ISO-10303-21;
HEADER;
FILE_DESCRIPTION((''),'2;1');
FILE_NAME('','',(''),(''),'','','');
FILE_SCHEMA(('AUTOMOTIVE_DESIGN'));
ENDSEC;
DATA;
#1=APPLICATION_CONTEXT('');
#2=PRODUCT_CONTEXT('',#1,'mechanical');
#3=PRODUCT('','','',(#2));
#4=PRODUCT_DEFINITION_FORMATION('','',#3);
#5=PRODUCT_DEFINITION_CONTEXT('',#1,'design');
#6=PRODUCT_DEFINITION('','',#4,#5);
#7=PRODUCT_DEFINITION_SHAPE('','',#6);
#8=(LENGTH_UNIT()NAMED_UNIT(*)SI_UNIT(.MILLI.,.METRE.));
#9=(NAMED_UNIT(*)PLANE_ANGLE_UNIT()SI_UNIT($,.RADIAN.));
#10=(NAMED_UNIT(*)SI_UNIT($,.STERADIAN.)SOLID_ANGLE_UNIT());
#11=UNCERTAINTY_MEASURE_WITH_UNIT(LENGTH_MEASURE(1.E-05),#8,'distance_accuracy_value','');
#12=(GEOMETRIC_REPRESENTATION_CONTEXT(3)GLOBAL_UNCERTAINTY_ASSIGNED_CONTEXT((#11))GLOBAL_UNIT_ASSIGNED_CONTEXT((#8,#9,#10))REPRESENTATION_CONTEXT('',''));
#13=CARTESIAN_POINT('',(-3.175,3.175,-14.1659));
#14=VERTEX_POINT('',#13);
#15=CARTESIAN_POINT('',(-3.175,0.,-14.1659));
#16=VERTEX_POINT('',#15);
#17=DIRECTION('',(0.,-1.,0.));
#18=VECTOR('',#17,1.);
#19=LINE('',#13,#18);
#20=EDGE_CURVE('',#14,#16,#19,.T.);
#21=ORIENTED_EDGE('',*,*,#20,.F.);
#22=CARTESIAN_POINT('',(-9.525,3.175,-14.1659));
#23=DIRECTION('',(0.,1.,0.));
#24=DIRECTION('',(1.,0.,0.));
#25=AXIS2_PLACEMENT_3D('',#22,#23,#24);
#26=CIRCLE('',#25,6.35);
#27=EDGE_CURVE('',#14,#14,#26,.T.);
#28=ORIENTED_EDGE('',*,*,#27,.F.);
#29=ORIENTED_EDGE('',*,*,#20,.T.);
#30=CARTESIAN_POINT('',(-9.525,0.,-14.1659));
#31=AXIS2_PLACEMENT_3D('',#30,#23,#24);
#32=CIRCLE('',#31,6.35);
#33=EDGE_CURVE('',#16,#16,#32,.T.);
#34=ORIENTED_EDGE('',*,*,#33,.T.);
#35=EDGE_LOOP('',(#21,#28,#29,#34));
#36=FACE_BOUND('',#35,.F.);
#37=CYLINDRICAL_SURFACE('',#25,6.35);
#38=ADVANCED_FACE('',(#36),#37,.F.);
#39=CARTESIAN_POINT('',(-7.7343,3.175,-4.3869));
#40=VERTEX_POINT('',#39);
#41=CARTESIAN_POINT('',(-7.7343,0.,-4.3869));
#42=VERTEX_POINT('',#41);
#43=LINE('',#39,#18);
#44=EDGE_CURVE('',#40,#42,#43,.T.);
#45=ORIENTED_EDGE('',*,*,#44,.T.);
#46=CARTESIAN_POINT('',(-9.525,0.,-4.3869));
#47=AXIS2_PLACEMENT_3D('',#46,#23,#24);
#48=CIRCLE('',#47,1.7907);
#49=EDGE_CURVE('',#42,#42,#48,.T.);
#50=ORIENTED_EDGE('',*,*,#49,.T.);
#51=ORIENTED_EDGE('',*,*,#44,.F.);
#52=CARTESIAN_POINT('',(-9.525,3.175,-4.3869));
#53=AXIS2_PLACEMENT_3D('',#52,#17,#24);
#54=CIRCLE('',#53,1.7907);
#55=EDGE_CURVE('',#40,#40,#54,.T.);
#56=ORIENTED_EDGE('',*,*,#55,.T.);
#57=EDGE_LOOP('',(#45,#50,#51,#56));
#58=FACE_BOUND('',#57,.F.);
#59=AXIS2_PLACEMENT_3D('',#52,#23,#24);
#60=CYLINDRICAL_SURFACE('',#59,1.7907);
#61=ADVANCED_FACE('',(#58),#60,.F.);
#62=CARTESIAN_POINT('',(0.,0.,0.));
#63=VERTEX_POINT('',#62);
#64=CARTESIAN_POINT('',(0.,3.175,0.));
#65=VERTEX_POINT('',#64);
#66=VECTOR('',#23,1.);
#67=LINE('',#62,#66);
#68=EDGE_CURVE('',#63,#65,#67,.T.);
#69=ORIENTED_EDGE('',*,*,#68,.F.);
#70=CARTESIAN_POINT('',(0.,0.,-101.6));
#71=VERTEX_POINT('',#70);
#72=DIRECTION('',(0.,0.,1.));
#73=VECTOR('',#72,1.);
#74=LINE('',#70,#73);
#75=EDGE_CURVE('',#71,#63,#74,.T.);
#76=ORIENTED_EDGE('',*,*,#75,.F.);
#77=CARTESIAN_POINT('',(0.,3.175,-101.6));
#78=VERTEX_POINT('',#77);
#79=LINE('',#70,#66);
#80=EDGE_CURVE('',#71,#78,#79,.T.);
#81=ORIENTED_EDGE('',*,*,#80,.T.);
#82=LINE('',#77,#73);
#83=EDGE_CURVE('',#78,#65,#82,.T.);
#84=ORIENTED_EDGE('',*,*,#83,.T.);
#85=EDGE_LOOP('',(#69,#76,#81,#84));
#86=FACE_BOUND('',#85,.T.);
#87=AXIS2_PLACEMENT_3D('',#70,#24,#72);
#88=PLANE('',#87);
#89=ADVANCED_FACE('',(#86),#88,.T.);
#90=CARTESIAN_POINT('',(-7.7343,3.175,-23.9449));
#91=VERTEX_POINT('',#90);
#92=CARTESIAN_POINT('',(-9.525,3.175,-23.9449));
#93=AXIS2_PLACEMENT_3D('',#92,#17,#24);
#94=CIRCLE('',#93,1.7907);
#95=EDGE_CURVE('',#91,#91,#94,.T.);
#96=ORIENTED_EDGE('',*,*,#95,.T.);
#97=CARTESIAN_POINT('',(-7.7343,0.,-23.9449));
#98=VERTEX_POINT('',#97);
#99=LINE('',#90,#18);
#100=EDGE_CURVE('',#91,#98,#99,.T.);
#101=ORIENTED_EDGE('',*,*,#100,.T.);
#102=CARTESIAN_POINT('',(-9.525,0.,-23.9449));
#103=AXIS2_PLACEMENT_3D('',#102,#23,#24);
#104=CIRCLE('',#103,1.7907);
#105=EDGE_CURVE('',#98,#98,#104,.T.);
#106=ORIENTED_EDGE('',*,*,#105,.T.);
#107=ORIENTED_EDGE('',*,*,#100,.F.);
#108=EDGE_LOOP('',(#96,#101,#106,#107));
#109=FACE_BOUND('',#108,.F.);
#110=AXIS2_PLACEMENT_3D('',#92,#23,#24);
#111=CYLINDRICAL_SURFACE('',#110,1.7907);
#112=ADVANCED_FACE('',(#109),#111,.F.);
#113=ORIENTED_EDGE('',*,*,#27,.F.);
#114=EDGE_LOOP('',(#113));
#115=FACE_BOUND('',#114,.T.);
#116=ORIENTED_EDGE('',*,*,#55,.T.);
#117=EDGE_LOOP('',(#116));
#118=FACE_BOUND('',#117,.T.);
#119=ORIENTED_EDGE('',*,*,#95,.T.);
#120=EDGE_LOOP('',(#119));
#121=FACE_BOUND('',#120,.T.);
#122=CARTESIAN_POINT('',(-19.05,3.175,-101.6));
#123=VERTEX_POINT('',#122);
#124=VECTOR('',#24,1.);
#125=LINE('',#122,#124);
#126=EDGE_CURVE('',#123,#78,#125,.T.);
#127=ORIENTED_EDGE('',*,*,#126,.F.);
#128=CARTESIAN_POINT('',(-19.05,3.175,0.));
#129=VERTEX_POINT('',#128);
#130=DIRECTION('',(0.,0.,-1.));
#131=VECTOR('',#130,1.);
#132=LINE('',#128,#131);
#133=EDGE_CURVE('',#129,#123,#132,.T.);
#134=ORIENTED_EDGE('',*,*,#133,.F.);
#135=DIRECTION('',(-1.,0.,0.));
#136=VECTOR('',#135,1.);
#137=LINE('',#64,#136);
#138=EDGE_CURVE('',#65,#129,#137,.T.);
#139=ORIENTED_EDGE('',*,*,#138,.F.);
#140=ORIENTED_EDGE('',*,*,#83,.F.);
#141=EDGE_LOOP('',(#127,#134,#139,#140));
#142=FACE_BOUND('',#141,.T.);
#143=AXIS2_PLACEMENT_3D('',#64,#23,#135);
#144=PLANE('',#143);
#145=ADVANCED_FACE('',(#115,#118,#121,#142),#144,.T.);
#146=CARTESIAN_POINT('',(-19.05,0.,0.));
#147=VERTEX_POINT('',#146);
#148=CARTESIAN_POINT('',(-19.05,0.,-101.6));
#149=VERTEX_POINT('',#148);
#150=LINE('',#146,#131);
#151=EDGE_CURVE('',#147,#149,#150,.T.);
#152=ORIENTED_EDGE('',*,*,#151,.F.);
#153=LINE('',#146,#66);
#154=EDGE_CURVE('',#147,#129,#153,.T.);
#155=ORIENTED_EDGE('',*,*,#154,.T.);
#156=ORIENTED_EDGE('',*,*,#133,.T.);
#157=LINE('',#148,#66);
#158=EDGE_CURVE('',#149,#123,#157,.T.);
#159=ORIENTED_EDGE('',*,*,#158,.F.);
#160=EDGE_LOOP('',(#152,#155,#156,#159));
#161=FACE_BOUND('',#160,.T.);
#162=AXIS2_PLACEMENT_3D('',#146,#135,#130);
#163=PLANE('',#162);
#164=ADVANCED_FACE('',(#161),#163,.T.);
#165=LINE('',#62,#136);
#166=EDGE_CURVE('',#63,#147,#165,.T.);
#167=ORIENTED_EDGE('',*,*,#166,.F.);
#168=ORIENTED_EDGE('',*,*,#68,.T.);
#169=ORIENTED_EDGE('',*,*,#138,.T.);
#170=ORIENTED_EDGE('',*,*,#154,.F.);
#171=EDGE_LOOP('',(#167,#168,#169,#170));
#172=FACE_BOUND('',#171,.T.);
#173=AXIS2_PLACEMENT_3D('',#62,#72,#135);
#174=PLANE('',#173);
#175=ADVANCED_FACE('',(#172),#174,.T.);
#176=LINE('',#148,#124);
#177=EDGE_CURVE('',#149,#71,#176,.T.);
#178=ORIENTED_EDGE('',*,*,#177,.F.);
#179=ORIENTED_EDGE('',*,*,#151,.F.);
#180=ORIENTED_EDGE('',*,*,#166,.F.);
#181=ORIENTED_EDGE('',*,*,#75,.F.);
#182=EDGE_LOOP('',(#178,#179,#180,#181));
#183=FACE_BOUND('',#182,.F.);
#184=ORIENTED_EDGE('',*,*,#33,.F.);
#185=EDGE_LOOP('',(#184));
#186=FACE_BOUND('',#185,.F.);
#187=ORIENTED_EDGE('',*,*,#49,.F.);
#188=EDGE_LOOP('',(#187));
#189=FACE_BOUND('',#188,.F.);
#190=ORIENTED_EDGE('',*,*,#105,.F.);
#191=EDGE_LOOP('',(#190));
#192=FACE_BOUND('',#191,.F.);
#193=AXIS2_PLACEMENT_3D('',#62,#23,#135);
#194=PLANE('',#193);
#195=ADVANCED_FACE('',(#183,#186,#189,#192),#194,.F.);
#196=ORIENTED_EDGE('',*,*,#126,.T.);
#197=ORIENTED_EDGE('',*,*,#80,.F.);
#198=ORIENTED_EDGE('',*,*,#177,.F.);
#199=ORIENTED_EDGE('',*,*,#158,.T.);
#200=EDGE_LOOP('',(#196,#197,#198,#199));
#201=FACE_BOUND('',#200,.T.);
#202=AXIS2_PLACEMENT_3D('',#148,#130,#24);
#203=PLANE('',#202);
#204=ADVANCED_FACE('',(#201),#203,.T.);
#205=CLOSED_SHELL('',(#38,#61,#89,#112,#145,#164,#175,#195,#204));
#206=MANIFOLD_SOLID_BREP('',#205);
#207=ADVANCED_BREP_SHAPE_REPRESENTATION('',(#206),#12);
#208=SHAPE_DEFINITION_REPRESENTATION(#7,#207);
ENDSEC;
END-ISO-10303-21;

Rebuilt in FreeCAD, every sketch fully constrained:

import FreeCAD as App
import Part
import Sketcher
from FreeCAD import Vector
Q = App.Units.Quantity

doc = App.newDocument("Part")
body = doc.addObject("PartDesign::Body", "Body")

sketch1 = doc.addObject("Sketcher::SketchObject", "Sketch")
body.addObject(sketch1)
sketch1.AttachmentSupport = (doc.XZ_Plane, [""])
sketch1.MapMode = "FlatFace"
sketch1.addGeometry(Part.LineSegment(Vector(-19, 0, 0), Vector(0, 0, 0)), False)
sketch1.addGeometry(Part.LineSegment(Vector(0, 0, 0), Vector(0, -102, 0)), False)
sketch1.addGeometry(Part.LineSegment(Vector(0, -102, 0), Vector(-19, -102, 0)), False)
sketch1.addGeometry(Part.LineSegment(Vector(-19, -102, 0), Vector(-19, 0, 0)), False)
sketch1.addConstraint(Sketcher.Constraint("Coincident", 0, 2, 1, 1))
sketch1.addConstraint(Sketcher.Constraint("Coincident", 1, 2, 2, 1))
sketch1.addConstraint(Sketcher.Constraint("Coincident", 2, 2, 3, 1))
sketch1.addConstraint(Sketcher.Constraint("Coincident", 3, 2, 0, 1))
sketch1.addConstraint(Sketcher.Constraint("Horizontal", 0))
sketch1.addConstraint(Sketcher.Constraint("Vertical", 1))
sketch1.addConstraint(Sketcher.Constraint("Horizontal", 2))
sketch1.addConstraint(Sketcher.Constraint("Vertical", 3))
sketch1.addConstraint(Sketcher.Constraint("Coincident", 0, 2, -1, 1))
sketch1.addConstraint(Sketcher.Constraint("DistanceY", 1, 2, 1, 1, Q("4 in")))
sketch1.addConstraint(Sketcher.Constraint("DistanceX", 0, 1, 0, 2, Q("0.75 in")))
pad1 = doc.addObject("PartDesign::Pad", "Pad")
body.addObject(pad1)
pad1.Profile = sketch1
pad1.Length = Q("0.125 in")
pad1.Reversed = True

sketch2 = doc.addObject("Sketcher::SketchObject", "Sketch001")
body.addObject(sketch2)
sketch2.AttachmentSupport = (doc.XZ_Plane, [""])
sketch2.MapMode = "FlatFace"
sketch2.AttachmentOffset = App.Placement(Vector(0, 0, -0.125 * 25.4), App.Rotation())
sketch2.addGeometry(Part.Circle(Vector(-9.5, -23.9, 0), Vector(0, 0, 1), 1.8), False)
sketch2.addGeometry(Part.Circle(Vector(-9.5, -4.4, 0), Vector(0, 0, 1), 1.8), False)
sketch2.addGeometry(Part.Circle(Vector(-9.5, -14.2, 0), Vector(0, 0, 1), 6.3), False)
sketch2.addConstraint(Sketcher.Constraint("Equal", 0, 1))
sketch2.addConstraint(Sketcher.Constraint("Vertical", 0, 3, 1, 3))
sketch2.addConstraint(Sketcher.Constraint("Vertical", 1, 3, 2, 3))
sketch2.addConstraint(Sketcher.Constraint("Diameter", 2, Q("0.5 in")))
sketch2.addConstraint(Sketcher.Constraint("Diameter", 0, Q("0.141 in")))
sketch2.addConstraint(Sketcher.Constraint("DistanceY", 0, 3, 1, 3, Q("0.77 in")))
sketch2.addConstraint(Sketcher.Constraint("DistanceX", 0, 3, -1, 1, Q("0.375 in")))
sketch2.addConstraint(Sketcher.Constraint("DistanceY", 0, 3, 2, 3, Q("0.385 in")))
sketch2.addConstraint(Sketcher.Constraint("DistanceY", 0, 3, -1, 1, Q("23.945 mm")))
pocket1 = doc.addObject("PartDesign::Pocket", "Pocket")
body.addObject(pocket1)
pocket1.Profile = sketch2
pocket1.Length = Q("0.125 in")
pocket1.Reversed = True

doc.recompute()
